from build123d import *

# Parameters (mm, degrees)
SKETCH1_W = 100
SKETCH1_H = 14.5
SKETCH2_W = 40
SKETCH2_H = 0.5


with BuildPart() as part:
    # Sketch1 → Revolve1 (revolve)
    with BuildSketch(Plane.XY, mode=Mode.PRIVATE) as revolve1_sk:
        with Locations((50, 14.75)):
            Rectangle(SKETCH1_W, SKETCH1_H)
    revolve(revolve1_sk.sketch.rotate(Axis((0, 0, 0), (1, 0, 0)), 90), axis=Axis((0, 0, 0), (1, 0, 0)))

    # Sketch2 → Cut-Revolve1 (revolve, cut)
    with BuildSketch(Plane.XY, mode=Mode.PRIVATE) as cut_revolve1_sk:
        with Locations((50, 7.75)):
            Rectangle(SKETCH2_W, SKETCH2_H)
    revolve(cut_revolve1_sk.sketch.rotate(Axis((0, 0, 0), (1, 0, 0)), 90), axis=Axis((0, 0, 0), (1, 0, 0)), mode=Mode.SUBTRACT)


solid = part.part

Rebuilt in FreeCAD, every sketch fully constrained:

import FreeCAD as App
import Part
import Sketcher
Q = App.Units.Quantity

doc = App.newDocument("Part")
body = doc.addObject("PartDesign::Body", "Body")

# Sketch on XY plane
sketch1 = doc.addObject("Sketcher::SketchObject", "Sketch")
body.addObject(sketch1)
sketch1.AttachmentSupport = (doc.XY_Plane, [""])
sketch1.MapMode = "FlatFace"
sketch1.addGeometry(Part.LineSegment(App.Vector(0, 22, 0), App.Vector(0, 8, 0)), False)
sketch1.addGeometry(Part.LineSegment(App.Vector(0, 8, 0), App.Vector(100, 8, 0)), False)
sketch1.addGeometry(Part.LineSegment(App.Vector(100, 8, 0), App.Vector(100, 22, 0)), False)
sketch1.addGeometry(Part.LineSegment(App.Vector(100, 22, 0), App.Vector(0, 22, 0)), False)
sketch1.addConstraint(Sketcher.Constraint("Coincident", 0, 2, 1, 1))
sketch1.addConstraint(Sketcher.Constraint("Coincident", 1, 2, 2, 1))
sketch1.addConstraint(Sketcher.Constraint("Coincident", 2, 2, 3, 1))
sketch1.addConstraint(Sketcher.Constraint("Coincident", 3, 2, 0, 1))
sketch1.addConstraint(Sketcher.Constraint("Vertical", 0))
sketch1.addConstraint(Sketcher.Constraint("Horizontal", 1))
sketch1.addConstraint(Sketcher.Constraint("Vertical", 2))
sketch1.addConstraint(Sketcher.Constraint("Horizontal", 3))
sketch1.addConstraint(Sketcher.Constraint("PointOnObject", 0, 2, -2))
sketch1.addConstraint(Sketcher.Constraint("DistanceX", 1, 1, 1, 2, Q("100 mm")))
sketch1.addConstraint(Sketcher.Constraint("DistanceY", 0, 2, 0, 1, Q("14.5 mm")))
sketch1.addConstraint(Sketcher.Constraint("DistanceY", -1, 1, 2, 2, Q("22 mm")))
revolution = doc.addObject("PartDesign::Revolution", "Revolution")
body.addObject(revolution)
revolution.Profile = sketch1
revolution.ReferenceAxis = (sketch1, ["H_Axis"])
revolution.Angle = 360

# Sketch on XY plane
sketch2 = doc.addObject("Sketcher::SketchObject", "Sketch001")
body.addObject(sketch2)
sketch2.AttachmentSupport = (doc.XY_Plane, [""])
sketch2.MapMode = "FlatFace"
sketch2.addGeometry(Part.LineSegment(App.Vector(30, 8, 0), App.Vector(30, 7.5, 0)), False)
sketch2.addGeometry(Part.LineSegment(App.Vector(30, 7.5, 0), App.Vector(70, 7.5, 0)), False)
sketch2.addGeometry(Part.LineSegment(App.Vector(70, 7.5, 0), App.Vector(70, 8, 0)), False)
sketch2.addGeometry(Part.LineSegment(App.Vector(70, 8, 0), App.Vector(30, 8, 0)), False)
sketch2.addConstraint(Sketcher.Constraint("Coincident", 0, 2, 1, 1))
sketch2.addConstraint(Sketcher.Constraint("Coincident", 1, 2, 2, 1))
sketch2.addConstraint(Sketcher.Constraint("Coincident", 2, 2, 3, 1))
sketch2.addConstraint(Sketcher.Constraint("Coincident", 3, 2, 0, 1))
sketch2.addConstraint(Sketcher.Constraint("Vertical", 0))
sketch2.addConstraint(Sketcher.Constraint("Horizontal", 1))
sketch2.addConstraint(Sketcher.Constraint("Vertical", 2))
sketch2.addConstraint(Sketcher.Constraint("Horizontal", 3))
sketch2.addConstraint(Sketcher.Constraint("DistanceX", 1, 1, 1, 2, Q("40 mm")))
sketch2.addConstraint(Sketcher.Constraint("DistanceY", 0, 2, 0, 1, Q("0.5 mm")))
sketch2.addConstraint(Sketcher.Constraint("DistanceX", -1, 1, 0, 2, Q("30 mm")))
sketch2.addConstraint(Sketcher.Constraint("DistanceY", -1, 1, 2, 2, Q("8 mm")))
groove = doc.addObject("PartDesign::Groove", "Groove")
body.addObject(groove)
groove.Profile = sketch2
groove.ReferenceAxis = (sketch2, ["H_Axis"])
groove.Angle = 360

doc.recompute()
